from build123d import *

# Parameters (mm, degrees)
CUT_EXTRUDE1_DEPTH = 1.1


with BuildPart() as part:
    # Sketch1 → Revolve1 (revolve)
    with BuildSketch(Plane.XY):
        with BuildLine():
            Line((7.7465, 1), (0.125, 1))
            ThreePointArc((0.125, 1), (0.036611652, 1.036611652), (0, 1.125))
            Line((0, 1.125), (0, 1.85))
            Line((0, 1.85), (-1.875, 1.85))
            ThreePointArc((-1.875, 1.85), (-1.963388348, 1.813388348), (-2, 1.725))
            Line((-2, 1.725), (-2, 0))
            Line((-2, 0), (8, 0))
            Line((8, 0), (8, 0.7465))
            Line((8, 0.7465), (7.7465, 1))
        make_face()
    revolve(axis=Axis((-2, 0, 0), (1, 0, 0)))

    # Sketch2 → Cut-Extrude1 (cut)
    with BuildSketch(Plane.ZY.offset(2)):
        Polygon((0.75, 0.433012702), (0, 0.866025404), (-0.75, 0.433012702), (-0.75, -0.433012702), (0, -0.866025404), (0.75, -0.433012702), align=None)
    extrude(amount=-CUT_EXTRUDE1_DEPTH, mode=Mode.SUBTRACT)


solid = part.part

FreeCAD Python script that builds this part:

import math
import FreeCAD as App
import Part
import Sketcher
from FreeCAD import Vector
Q = App.Units.Quantity


def add_polygon(sketch, points):
    """Adds a closed chain of lines whose ends are joined by coincident constraints."""
    first, n = sketch.GeometryCount, len(points)
    for a, b in zip(points, points[1:] + points[:1]):
        sketch.addGeometry(Part.LineSegment(App.Vector(*a, 0), App.Vector(*b, 0)), False)
    for i in range(n):
        sketch.addConstraint(Sketcher.Constraint("Coincident", first + i, 2, first + (i + 1) % n, 1))

doc = App.newDocument("Part")
params = doc.addObject("Spreadsheet::Sheet", "Params")
for row, (alias, value) in enumerate([
    ("sketch1_width", "10 mm"),
    ("revolution_angle", "360 deg"),
    ("pocket1_length", "1.1 mm"),
], start=1):
    params.set(f"A{row}", alias)
    params.set(f"B{row}", "=" + value)
    params.setAlias(f"B{row}", alias)

body = doc.addObject("PartDesign::Body", "Body")

# Sketch on XY plane
sketch1 = body.newObject("Sketcher::SketchObject", "Sketch")
sketch1.AttachmentSupport = (doc.getObject("XY_Plane"), [""])
sketch1.MapMode = "FlatFace"
sketch1.addGeometry([
    Part.LineSegment(Vector(7.75, 1, 0), Vector(0.12, 1, 0)),  # 0
    Part.ArcOfCircle(Part.Circle(Vector(0.12, 1.12, 0), Vector(0, 0, 1), 0.12), math.radians(180), math.radians(270)),  # 1
    Part.LineSegment(Vector(0, 1.12, 0), Vector(0, 1.85, 0)),  # 2
    Part.LineSegment(Vector(0, 1.85, 0), Vector(-1.88, 1.85, 0)),  # 3
    Part.ArcOfCircle(Part.Circle(Vector(-1.88, 1.73, 0), Vector(0, 0, 1), 0.12), math.radians(90), math.radians(180)),  # 4
    Part.LineSegment(Vector(-2, 1.73, 0), Vector(-2, 0, 0)),  # 5
    Part.LineSegment(Vector(-2, 0, 0), Vector(8, 0, 0)),  # 6
    Part.LineSegment(Vector(8, 0, 0), Vector(8, 0.75, 0)),  # 7
    Part.LineSegment(Vector(8, 0.75, 0), Vector(7.75, 1, 0)),  # 8
], False)
sketch1.addConstraint([
    Sketcher.Constraint("Tangent", 0, 2, 1, 2),
    Sketcher.Constraint("Tangent", 1, 1, 2, 1),
    Sketcher.Constraint("Coincident", 2, 2, 3, 1),
    Sketcher.Constraint("Tangent", 3, 2, 4, 1),
    Sketcher.Constraint("Tangent", 4, 2, 5, 1),
    Sketcher.Constraint("Coincident", 5, 2, 6, 1),
    Sketcher.Constraint("Coincident", 6, 2, 7, 1),
    Sketcher.Constraint("Coincident", 7, 2, 8, 1),
    Sketcher.Constraint("Coincident", 8, 2, 0, 1),
    Sketcher.Constraint("Horizontal", 0),
    Sketcher.Constraint("Vertical", 2),
    Sketcher.Constraint("Horizontal", 3),
    Sketcher.Constraint("Vertical", 5),
    Sketcher.Constraint("Horizontal", 6),
    Sketcher.Constraint("Vertical", 7),
    Sketcher.Constraint("Equal", 1, 4),
    Sketcher.Constraint("PointOnObject", 1, 1, -2),
    Sketcher.Constraint("PointOnObject", 5, 2, -1),
    Sketcher.Constraint("DistanceX", 6, 1, 6, 2, 10.0),
    Sketcher.Constraint("Angle", 8, Q("135 deg")),
    Sketcher.Constraint("DistanceY", -1, 1, 0, 2, 1.0),
    Sketcher.Constraint("DistanceX", 4, 2, -1, 1, 2.0),
    Sketcher.Constraint("Radius", 1, 0.125),
    Sketcher.Constraint("DistanceY", 1, 3, 4, 3, 0.6),
    Sketcher.Constraint("DistanceX", 0, 2, 0, 1, 7.6215),
])
sketch1.setExpression("Constraints[18]", "Params.sketch1_width")
revolution = body.newObject("PartDesign::Revolution", "Revolution")
revolution.Profile = sketch1
revolution.ReferenceAxis = (sketch1, ["H_Axis"])
revolution.setExpression("Angle", "Params.revolution_angle")

# Sketch on YZ plane
sketch2 = body.newObject("Sketcher::SketchObject", "Sketch001")
sketch2.AttachmentSupport = (doc.getObject("YZ_Plane"), [""])
sketch2.MapMode = "FlatFace"
sketch2.AttachmentOffset = App.Placement(Vector(0, 0, -2), App.Rotation())
add_polygon(sketch2, [(0.4, 0.8), (0.9, 0), (0.4, -0.8), (-0.4, -0.8), (-0.9, 0), (-0.4, 0.8)])  # lines 0-5
sketch2.addConstraint([
    Sketcher.Constraint("Horizontal", 2),
    Sketcher.Constraint("Horizontal", 5),
    Sketcher.Constraint("Symmetric", 0, 2, 3, 2, -1, 1),
    Sketcher.Constraint("Symmetric", 1, 2, 4, 2, -1, 1),
    Sketcher.Constraint("PointOnObject", 0, 2, -1),
    Sketcher.Constraint("Parallel", 0, 3),
    Sketcher.Constraint("Vertical", 2, 2, 4, 2),
    Sketcher.Constraint("Angle", 0, Q("-60 deg")),
    Sketcher.Constraint("DistanceY", 2, 2, 4, 2, 1.5),
    Sketcher.Constraint("DistanceX", 2, 2, 2, 1, 0.866025),
])
pocket1 = body.newObject("PartDesign::Pocket", "Pocket")
pocket1.Profile = sketch2
pocket1.setExpression("Length", "Params.pocket1_length")
pocket1.Reversed = True

doc.recompute()
